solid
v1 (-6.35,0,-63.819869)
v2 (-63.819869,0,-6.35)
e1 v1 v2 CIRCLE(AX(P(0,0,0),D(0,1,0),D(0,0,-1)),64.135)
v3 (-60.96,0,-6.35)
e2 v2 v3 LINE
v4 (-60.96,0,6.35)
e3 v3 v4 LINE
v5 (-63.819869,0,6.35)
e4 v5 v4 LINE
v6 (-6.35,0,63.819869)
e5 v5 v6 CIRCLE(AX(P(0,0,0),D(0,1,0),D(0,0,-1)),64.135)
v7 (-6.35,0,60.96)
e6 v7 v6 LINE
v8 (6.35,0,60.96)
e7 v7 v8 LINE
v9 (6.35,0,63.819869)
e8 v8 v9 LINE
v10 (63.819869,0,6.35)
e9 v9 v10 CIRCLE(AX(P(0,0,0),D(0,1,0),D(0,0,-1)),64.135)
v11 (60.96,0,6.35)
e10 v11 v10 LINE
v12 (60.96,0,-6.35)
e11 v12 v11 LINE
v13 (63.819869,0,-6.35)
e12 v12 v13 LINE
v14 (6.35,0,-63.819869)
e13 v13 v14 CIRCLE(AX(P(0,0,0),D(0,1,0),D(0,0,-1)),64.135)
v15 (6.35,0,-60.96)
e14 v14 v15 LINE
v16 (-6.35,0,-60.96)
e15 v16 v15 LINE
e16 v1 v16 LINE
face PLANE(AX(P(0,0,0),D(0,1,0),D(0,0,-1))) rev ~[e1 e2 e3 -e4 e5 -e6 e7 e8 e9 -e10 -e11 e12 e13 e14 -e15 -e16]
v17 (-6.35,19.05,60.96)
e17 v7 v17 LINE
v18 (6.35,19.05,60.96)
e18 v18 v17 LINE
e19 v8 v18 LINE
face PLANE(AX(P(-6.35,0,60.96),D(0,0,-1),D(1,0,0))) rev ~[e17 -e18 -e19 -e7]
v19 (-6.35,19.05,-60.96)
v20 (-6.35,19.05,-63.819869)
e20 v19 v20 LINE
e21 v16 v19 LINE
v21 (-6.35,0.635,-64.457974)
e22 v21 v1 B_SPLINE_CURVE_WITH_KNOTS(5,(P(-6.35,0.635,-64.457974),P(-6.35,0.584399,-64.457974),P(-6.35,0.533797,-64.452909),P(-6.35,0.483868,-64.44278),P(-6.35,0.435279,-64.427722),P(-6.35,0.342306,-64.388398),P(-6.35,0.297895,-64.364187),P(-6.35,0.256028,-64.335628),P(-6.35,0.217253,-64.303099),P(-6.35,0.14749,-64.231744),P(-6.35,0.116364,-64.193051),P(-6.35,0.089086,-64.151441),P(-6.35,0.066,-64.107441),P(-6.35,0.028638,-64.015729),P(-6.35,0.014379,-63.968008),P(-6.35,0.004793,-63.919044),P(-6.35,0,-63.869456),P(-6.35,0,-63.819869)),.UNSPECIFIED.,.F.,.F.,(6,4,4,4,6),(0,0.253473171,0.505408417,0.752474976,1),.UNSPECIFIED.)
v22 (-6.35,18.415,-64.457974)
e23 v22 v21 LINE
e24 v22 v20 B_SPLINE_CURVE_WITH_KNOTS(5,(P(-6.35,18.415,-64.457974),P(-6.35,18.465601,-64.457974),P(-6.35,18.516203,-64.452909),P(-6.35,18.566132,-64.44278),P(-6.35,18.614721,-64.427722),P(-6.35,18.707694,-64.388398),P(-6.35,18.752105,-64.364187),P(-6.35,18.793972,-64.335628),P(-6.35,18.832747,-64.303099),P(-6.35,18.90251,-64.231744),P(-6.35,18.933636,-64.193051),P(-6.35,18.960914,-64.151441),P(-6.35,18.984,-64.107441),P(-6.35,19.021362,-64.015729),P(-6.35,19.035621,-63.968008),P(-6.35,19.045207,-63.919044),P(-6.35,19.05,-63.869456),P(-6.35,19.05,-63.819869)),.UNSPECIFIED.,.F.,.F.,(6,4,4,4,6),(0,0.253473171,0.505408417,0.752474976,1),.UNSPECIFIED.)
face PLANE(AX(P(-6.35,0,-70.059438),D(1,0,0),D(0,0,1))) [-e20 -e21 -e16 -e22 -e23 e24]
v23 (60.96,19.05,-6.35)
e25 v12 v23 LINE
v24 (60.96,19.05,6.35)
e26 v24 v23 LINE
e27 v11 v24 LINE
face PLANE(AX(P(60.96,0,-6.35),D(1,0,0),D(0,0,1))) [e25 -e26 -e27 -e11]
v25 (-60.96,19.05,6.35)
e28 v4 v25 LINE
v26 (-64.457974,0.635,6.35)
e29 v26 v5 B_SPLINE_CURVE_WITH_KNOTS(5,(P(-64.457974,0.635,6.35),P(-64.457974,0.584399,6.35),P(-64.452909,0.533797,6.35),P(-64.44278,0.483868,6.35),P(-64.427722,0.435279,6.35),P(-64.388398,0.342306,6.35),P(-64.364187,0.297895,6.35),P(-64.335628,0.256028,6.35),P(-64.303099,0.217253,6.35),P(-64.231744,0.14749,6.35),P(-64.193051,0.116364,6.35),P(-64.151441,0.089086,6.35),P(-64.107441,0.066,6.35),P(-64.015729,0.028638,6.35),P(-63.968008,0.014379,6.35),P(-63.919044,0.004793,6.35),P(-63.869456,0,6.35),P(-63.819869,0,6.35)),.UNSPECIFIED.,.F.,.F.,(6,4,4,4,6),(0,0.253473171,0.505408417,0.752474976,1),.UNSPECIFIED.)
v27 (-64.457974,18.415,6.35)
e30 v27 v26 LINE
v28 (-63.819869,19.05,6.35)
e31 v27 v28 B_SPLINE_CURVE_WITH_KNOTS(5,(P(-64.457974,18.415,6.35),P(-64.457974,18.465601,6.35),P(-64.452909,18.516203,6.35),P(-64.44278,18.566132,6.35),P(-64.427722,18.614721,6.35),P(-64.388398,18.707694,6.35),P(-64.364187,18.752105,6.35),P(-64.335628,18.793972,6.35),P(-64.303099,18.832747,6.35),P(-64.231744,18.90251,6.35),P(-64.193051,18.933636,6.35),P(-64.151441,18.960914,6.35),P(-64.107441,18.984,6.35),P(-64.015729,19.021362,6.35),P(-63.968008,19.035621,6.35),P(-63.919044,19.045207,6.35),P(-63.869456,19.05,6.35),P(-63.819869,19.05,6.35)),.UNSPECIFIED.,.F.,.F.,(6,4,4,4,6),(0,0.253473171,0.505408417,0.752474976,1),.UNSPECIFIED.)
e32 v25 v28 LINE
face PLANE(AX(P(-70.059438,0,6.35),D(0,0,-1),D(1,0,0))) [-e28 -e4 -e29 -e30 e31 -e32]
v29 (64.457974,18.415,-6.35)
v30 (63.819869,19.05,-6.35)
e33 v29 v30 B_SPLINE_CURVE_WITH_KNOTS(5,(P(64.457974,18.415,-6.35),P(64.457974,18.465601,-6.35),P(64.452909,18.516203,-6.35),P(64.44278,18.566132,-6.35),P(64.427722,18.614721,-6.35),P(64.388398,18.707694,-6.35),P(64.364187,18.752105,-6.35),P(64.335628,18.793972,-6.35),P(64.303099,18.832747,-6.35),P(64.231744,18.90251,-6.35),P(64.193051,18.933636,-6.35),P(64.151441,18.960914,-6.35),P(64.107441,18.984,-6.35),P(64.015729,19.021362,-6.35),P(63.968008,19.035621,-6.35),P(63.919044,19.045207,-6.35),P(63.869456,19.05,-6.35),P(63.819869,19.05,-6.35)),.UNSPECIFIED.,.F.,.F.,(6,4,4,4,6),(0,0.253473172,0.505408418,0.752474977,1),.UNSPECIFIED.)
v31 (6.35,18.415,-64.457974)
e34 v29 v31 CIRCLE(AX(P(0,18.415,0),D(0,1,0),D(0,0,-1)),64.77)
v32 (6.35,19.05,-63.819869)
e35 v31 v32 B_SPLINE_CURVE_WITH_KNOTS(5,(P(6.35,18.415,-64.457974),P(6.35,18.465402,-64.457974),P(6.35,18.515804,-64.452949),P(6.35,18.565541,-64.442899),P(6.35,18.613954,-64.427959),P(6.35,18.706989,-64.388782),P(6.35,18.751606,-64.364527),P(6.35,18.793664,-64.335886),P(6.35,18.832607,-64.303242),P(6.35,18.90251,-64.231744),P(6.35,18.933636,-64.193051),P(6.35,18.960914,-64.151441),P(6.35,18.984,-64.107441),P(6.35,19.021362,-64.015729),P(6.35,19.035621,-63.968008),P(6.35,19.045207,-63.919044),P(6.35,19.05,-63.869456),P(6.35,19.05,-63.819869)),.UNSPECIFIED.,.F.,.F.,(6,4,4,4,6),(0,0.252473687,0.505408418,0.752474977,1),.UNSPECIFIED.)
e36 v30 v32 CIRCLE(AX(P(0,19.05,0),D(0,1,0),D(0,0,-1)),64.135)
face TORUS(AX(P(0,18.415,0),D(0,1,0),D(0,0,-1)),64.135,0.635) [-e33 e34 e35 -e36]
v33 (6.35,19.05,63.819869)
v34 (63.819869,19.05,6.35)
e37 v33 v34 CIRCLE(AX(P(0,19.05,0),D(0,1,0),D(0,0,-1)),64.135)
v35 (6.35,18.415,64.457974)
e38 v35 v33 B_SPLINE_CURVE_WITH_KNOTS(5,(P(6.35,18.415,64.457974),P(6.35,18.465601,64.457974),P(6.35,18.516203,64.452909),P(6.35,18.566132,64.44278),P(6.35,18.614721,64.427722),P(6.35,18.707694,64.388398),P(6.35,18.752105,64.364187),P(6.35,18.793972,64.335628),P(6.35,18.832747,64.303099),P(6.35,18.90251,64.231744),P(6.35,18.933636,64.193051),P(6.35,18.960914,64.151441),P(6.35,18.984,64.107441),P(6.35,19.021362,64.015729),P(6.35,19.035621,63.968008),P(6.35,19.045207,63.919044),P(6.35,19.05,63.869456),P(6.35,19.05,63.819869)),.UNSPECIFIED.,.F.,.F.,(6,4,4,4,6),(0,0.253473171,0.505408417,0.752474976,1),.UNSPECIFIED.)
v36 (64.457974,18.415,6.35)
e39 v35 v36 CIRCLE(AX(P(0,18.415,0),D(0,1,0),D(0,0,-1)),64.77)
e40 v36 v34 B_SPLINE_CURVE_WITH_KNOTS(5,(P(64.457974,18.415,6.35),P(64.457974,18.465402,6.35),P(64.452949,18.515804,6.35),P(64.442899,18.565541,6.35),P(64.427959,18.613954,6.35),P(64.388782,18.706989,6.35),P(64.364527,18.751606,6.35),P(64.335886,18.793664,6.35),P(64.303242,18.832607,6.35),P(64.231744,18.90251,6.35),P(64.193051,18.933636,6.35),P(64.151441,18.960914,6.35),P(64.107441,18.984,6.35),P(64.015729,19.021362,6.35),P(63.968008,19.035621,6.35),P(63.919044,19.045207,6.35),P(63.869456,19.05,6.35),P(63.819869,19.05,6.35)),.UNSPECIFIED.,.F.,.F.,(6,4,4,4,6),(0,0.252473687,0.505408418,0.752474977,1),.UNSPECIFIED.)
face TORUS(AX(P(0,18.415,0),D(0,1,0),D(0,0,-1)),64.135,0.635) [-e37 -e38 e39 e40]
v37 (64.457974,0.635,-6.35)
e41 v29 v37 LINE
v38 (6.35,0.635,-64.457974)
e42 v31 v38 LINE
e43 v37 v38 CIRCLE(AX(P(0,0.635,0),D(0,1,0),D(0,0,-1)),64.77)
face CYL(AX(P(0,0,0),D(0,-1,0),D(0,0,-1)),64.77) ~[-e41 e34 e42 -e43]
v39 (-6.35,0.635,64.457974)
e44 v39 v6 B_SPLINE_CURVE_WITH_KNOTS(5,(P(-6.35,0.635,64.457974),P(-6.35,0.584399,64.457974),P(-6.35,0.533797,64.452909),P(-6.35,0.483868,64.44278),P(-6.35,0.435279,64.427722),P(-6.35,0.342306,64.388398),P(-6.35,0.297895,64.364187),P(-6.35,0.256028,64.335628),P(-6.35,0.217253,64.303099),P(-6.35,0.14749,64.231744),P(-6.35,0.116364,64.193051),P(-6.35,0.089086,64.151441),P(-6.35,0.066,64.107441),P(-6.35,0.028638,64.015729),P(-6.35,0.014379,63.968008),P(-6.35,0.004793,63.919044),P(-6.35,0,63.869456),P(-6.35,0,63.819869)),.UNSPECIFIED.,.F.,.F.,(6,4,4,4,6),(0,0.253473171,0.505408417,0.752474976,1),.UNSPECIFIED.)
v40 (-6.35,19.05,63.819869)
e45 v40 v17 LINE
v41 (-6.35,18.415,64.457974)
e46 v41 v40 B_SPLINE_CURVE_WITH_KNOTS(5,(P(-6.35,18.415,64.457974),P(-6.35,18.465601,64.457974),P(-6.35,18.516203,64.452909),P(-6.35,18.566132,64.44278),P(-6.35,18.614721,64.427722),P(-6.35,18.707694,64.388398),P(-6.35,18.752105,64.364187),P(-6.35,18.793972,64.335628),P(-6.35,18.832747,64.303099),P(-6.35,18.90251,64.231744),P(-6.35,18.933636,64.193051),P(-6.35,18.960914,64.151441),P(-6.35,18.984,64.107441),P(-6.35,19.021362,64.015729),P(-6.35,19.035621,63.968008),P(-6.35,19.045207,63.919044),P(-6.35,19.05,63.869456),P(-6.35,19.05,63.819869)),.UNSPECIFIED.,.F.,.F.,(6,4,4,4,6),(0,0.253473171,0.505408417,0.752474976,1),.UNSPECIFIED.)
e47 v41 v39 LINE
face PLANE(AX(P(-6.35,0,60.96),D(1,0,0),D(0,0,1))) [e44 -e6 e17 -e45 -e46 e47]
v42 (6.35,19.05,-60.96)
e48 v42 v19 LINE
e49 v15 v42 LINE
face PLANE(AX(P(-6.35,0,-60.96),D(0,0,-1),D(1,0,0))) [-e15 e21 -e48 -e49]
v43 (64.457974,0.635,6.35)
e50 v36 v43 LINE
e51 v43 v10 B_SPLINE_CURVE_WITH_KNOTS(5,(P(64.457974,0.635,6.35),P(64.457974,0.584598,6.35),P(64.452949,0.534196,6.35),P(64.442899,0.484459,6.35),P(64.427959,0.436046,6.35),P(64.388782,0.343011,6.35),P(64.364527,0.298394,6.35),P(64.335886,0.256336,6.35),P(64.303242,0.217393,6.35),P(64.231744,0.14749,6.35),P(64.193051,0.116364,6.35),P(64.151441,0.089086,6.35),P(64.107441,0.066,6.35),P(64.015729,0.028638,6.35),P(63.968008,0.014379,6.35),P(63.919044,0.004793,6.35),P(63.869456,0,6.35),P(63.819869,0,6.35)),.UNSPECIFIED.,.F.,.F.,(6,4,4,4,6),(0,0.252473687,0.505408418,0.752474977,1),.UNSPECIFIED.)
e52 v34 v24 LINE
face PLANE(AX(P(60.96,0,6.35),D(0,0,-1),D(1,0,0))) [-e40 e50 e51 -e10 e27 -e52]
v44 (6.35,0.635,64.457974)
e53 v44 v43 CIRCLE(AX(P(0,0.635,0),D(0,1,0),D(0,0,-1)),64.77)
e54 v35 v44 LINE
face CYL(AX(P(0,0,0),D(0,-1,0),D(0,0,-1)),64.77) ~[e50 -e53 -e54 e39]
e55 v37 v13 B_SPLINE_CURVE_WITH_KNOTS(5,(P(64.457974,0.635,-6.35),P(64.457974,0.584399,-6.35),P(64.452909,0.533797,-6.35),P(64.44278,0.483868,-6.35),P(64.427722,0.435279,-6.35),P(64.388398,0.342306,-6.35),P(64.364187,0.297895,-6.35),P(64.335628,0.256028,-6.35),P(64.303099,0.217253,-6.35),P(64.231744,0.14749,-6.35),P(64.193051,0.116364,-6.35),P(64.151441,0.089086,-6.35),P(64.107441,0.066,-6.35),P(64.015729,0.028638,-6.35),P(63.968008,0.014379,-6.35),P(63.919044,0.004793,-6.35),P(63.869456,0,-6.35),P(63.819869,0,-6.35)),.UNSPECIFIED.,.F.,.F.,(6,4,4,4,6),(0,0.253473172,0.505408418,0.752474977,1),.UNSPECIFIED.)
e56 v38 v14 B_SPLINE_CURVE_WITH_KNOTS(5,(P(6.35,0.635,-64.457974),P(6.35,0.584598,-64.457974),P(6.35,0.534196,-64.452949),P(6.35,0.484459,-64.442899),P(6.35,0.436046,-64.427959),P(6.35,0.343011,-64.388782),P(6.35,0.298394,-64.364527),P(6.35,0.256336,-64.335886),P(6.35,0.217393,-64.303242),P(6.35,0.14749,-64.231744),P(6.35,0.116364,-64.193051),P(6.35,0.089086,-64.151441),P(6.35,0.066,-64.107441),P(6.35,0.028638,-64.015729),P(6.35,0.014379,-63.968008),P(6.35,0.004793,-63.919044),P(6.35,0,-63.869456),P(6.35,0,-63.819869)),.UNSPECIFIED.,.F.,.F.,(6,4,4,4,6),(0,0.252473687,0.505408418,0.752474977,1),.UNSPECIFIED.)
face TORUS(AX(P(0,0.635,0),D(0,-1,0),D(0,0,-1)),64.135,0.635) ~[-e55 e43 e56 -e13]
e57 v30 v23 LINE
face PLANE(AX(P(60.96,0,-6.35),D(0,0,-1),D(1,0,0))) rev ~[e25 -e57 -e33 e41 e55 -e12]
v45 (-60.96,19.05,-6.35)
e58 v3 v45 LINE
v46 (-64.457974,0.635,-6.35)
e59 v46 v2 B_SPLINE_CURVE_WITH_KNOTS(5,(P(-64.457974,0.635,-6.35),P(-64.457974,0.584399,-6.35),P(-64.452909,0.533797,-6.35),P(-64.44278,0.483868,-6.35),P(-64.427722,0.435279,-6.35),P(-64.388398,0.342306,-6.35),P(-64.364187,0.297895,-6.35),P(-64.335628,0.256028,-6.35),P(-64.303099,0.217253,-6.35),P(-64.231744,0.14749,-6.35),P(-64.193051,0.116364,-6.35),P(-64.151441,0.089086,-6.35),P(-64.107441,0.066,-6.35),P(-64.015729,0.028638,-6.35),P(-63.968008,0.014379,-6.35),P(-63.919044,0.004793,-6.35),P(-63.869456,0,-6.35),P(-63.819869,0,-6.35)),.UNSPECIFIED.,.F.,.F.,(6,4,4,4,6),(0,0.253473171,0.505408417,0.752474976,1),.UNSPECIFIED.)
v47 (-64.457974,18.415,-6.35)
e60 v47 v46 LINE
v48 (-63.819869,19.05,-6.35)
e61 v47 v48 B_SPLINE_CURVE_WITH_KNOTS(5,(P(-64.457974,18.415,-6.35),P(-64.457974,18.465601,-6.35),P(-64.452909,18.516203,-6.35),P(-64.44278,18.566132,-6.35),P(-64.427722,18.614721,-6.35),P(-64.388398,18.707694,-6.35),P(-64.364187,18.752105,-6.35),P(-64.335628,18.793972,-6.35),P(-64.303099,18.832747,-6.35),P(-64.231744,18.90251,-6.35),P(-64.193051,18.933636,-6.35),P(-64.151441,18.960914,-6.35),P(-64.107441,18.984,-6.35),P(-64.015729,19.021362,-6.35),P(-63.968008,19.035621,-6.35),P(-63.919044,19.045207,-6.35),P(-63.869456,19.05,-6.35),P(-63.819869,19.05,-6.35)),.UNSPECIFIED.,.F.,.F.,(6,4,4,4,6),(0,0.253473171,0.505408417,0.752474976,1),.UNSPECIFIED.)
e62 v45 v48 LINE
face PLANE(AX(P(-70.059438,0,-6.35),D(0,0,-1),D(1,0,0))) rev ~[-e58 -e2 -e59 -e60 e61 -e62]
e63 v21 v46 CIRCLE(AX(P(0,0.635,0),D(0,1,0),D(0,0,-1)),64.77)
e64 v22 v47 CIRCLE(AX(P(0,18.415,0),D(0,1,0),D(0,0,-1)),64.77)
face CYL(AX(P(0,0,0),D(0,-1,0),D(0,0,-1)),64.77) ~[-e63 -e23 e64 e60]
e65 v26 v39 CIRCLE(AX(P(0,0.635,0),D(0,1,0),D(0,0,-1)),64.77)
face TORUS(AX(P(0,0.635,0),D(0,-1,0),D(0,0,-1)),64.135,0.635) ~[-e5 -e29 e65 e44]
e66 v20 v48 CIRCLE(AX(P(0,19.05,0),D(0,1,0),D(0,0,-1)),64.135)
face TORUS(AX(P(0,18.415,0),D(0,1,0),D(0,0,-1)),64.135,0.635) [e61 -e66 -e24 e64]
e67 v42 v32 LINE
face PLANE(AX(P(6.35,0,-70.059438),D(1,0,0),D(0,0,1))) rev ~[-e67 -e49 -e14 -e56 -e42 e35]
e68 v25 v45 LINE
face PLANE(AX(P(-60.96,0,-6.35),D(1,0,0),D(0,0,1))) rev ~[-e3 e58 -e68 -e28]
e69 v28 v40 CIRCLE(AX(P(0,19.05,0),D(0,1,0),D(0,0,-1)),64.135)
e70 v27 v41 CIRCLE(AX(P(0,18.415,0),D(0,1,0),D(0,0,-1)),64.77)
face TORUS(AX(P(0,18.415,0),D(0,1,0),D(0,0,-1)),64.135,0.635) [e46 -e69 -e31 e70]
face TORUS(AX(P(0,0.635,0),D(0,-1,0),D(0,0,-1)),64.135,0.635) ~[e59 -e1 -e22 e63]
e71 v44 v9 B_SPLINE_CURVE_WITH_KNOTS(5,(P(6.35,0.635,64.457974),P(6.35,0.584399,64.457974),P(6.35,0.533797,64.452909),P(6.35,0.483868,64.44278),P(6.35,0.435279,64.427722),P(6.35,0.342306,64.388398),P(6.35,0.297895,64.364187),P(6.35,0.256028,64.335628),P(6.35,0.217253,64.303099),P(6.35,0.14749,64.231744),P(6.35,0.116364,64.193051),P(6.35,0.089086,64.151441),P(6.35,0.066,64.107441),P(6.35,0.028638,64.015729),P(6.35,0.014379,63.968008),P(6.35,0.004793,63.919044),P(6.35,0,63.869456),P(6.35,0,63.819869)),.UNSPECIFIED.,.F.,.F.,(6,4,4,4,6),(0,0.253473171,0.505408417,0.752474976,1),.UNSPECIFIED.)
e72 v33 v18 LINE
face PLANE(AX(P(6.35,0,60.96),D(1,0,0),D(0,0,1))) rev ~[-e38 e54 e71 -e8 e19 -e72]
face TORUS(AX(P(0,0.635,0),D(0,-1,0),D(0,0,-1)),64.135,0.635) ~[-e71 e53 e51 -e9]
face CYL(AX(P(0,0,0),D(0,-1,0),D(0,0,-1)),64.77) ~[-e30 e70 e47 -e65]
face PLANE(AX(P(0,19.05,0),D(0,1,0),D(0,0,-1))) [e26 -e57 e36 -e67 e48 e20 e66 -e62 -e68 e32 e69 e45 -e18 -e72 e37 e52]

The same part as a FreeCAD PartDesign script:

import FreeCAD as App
import Part
import Sketcher

V = App.Vector
Q = App.Units.Quantity


def edges_at(feature, points):
    """Names of the edges that pass closest to the given points."""
    edges = feature.Shape.Edges
    near = lambda p: min(range(len(edges)), key=lambda i: edges[i].distToShape(Part.Vertex(*p))[0])
    return sorted({f"Edge{near(p) + 1}" for p in points})


def add_polygon(sketch, points):
    """Adds a closed chain of lines whose ends are joined by coincident constraints."""
    first, n = sketch.GeometryCount, len(points)
    for a, b in zip(points, points[1:] + points[:1]):
        sketch.addGeometry(Part.LineSegment(App.Vector(*a, 0), App.Vector(*b, 0)), False)
    for i in range(n):
        sketch.addConstraint(Sketcher.Constraint("Coincident", first + i, 2, first + (i + 1) % n, 1))

doc = App.newDocument("Part")
body = doc.addObject("PartDesign::Body", "Body")

# Sketch on XZ plane
sketch1 = body.newObject("Sketcher::SketchObject", "Sketch")
sketch1.AttachmentSupport = (doc.getObject("XZ_Plane"), [""])
sketch1.MapMode = "FlatFace"
sketch1.addGeometry(Part.Circle(V(0, 0, 0), V(0, 0, 1), 64.77), False)
sketch1.addConstraint([
    Sketcher.Constraint("Coincident", 0, 3, -1, 1),
    Sketcher.Constraint("Diameter", 0, Q("5.1 in")),
])
pad1 = body.newObject("PartDesign::Pad", "Pad")
pad1.Profile = sketch1
pad1.Length = Q("0.75 in")
pad1.Reversed = True
doc.recompute()

fillet = body.newObject("PartDesign::Fillet", "Fillet")
fillet.Base = (pad1, edges_at(pad1, [(0, 0, 64.77), (0, 19.05, 64.77)]))
fillet.Radius = Q("0.025 in")

# Sketch on XZ plane
sketch2 = body.newObject("Sketcher::SketchObject", "Sketch001")
sketch2.AttachmentSupport = (doc.getObject("XZ_Plane"), [""])
sketch2.MapMode = "FlatFace"
add_polygon(sketch2, [(-6.35, -60.96), (-6.35, -70.059438), (6.35, -70.059438), (6.35, -60.96)])  # lines 0-3
add_polygon(sketch2, [(-70.059438, 6.35), (-70.059438, -6.35), (-60.96, -6.35), (-60.96, 6.35)])  # lines 4-7
add_polygon(sketch2, [(-6.35, 70.059438), (-6.35, 60.96), (6.35, 60.96), (6.35, 70.059438)])  # lines 8-11
add_polygon(sketch2, [(60.96, 6.35), (60.96, -6.35), (70.059438, -6.35), (70.059438, 6.35)])  # lines 12-15
sketch2.addConstraint([
    Sketcher.Constraint("Vertical", 0),
    Sketcher.Constraint("Horizontal", 1),
    Sketcher.Constraint("Vertical", 2),
    Sketcher.Constraint("Horizontal", 3),
    Sketcher.Constraint("Vertical", 4),
    Sketcher.Constraint("Horizontal", 5),
    Sketcher.Constraint("Vertical", 6),
    Sketcher.Constraint("Horizontal", 7),
    Sketcher.Constraint("Vertical", 8),
    Sketcher.Constraint("Horizontal", 9),
    Sketcher.Constraint("Vertical", 10),
    Sketcher.Constraint("Horizontal", 11),
    Sketcher.Constraint("Vertical", 12),
    Sketcher.Constraint("Horizontal", 13),
    Sketcher.Constraint("Vertical", 14),
    Sketcher.Constraint("Horizontal", 15),
    Sketcher.Constraint("Symmetric", 2, 2, 8, 2, -1, 1),
    Sketcher.Constraint("Symmetric", 0, 2, 10, 2, -1, 1),
    Sketcher.Constraint("Symmetric", 6, 2, 12, 2, -1, 1),
    Sketcher.Constraint("Symmetric", 4, 2, 14, 2, -1, 1),
    Sketcher.Constraint("Horizontal", 5, 2, 12, 2),
    Sketcher.Constraint("Vertical", 3, 2, 8, 2),
    Sketcher.Constraint("Equal", 15, 0),
    Sketcher.Constraint("Equal", 11, 4),
    Sketcher.Constraint("DistanceX", 1, 1, 1, 2, Q("0.5 in")),
    Sketcher.Constraint("DistanceY", 2, 2, -1, 1, Q("2.4 in")),
    Sketcher.Constraint("DistanceX", 5, 2, -1, 1, Q("2.4 in")),
    Sketcher.Constraint("DistanceX", 5, 1, 5, 2, Q("9.099438 mm")),
])
pocket1 = body.newObject("PartDesign::Pocket", "Pocket")
pocket1.Profile = sketch2
pocket1.Type = "ThroughAll"

doc.recompute()
